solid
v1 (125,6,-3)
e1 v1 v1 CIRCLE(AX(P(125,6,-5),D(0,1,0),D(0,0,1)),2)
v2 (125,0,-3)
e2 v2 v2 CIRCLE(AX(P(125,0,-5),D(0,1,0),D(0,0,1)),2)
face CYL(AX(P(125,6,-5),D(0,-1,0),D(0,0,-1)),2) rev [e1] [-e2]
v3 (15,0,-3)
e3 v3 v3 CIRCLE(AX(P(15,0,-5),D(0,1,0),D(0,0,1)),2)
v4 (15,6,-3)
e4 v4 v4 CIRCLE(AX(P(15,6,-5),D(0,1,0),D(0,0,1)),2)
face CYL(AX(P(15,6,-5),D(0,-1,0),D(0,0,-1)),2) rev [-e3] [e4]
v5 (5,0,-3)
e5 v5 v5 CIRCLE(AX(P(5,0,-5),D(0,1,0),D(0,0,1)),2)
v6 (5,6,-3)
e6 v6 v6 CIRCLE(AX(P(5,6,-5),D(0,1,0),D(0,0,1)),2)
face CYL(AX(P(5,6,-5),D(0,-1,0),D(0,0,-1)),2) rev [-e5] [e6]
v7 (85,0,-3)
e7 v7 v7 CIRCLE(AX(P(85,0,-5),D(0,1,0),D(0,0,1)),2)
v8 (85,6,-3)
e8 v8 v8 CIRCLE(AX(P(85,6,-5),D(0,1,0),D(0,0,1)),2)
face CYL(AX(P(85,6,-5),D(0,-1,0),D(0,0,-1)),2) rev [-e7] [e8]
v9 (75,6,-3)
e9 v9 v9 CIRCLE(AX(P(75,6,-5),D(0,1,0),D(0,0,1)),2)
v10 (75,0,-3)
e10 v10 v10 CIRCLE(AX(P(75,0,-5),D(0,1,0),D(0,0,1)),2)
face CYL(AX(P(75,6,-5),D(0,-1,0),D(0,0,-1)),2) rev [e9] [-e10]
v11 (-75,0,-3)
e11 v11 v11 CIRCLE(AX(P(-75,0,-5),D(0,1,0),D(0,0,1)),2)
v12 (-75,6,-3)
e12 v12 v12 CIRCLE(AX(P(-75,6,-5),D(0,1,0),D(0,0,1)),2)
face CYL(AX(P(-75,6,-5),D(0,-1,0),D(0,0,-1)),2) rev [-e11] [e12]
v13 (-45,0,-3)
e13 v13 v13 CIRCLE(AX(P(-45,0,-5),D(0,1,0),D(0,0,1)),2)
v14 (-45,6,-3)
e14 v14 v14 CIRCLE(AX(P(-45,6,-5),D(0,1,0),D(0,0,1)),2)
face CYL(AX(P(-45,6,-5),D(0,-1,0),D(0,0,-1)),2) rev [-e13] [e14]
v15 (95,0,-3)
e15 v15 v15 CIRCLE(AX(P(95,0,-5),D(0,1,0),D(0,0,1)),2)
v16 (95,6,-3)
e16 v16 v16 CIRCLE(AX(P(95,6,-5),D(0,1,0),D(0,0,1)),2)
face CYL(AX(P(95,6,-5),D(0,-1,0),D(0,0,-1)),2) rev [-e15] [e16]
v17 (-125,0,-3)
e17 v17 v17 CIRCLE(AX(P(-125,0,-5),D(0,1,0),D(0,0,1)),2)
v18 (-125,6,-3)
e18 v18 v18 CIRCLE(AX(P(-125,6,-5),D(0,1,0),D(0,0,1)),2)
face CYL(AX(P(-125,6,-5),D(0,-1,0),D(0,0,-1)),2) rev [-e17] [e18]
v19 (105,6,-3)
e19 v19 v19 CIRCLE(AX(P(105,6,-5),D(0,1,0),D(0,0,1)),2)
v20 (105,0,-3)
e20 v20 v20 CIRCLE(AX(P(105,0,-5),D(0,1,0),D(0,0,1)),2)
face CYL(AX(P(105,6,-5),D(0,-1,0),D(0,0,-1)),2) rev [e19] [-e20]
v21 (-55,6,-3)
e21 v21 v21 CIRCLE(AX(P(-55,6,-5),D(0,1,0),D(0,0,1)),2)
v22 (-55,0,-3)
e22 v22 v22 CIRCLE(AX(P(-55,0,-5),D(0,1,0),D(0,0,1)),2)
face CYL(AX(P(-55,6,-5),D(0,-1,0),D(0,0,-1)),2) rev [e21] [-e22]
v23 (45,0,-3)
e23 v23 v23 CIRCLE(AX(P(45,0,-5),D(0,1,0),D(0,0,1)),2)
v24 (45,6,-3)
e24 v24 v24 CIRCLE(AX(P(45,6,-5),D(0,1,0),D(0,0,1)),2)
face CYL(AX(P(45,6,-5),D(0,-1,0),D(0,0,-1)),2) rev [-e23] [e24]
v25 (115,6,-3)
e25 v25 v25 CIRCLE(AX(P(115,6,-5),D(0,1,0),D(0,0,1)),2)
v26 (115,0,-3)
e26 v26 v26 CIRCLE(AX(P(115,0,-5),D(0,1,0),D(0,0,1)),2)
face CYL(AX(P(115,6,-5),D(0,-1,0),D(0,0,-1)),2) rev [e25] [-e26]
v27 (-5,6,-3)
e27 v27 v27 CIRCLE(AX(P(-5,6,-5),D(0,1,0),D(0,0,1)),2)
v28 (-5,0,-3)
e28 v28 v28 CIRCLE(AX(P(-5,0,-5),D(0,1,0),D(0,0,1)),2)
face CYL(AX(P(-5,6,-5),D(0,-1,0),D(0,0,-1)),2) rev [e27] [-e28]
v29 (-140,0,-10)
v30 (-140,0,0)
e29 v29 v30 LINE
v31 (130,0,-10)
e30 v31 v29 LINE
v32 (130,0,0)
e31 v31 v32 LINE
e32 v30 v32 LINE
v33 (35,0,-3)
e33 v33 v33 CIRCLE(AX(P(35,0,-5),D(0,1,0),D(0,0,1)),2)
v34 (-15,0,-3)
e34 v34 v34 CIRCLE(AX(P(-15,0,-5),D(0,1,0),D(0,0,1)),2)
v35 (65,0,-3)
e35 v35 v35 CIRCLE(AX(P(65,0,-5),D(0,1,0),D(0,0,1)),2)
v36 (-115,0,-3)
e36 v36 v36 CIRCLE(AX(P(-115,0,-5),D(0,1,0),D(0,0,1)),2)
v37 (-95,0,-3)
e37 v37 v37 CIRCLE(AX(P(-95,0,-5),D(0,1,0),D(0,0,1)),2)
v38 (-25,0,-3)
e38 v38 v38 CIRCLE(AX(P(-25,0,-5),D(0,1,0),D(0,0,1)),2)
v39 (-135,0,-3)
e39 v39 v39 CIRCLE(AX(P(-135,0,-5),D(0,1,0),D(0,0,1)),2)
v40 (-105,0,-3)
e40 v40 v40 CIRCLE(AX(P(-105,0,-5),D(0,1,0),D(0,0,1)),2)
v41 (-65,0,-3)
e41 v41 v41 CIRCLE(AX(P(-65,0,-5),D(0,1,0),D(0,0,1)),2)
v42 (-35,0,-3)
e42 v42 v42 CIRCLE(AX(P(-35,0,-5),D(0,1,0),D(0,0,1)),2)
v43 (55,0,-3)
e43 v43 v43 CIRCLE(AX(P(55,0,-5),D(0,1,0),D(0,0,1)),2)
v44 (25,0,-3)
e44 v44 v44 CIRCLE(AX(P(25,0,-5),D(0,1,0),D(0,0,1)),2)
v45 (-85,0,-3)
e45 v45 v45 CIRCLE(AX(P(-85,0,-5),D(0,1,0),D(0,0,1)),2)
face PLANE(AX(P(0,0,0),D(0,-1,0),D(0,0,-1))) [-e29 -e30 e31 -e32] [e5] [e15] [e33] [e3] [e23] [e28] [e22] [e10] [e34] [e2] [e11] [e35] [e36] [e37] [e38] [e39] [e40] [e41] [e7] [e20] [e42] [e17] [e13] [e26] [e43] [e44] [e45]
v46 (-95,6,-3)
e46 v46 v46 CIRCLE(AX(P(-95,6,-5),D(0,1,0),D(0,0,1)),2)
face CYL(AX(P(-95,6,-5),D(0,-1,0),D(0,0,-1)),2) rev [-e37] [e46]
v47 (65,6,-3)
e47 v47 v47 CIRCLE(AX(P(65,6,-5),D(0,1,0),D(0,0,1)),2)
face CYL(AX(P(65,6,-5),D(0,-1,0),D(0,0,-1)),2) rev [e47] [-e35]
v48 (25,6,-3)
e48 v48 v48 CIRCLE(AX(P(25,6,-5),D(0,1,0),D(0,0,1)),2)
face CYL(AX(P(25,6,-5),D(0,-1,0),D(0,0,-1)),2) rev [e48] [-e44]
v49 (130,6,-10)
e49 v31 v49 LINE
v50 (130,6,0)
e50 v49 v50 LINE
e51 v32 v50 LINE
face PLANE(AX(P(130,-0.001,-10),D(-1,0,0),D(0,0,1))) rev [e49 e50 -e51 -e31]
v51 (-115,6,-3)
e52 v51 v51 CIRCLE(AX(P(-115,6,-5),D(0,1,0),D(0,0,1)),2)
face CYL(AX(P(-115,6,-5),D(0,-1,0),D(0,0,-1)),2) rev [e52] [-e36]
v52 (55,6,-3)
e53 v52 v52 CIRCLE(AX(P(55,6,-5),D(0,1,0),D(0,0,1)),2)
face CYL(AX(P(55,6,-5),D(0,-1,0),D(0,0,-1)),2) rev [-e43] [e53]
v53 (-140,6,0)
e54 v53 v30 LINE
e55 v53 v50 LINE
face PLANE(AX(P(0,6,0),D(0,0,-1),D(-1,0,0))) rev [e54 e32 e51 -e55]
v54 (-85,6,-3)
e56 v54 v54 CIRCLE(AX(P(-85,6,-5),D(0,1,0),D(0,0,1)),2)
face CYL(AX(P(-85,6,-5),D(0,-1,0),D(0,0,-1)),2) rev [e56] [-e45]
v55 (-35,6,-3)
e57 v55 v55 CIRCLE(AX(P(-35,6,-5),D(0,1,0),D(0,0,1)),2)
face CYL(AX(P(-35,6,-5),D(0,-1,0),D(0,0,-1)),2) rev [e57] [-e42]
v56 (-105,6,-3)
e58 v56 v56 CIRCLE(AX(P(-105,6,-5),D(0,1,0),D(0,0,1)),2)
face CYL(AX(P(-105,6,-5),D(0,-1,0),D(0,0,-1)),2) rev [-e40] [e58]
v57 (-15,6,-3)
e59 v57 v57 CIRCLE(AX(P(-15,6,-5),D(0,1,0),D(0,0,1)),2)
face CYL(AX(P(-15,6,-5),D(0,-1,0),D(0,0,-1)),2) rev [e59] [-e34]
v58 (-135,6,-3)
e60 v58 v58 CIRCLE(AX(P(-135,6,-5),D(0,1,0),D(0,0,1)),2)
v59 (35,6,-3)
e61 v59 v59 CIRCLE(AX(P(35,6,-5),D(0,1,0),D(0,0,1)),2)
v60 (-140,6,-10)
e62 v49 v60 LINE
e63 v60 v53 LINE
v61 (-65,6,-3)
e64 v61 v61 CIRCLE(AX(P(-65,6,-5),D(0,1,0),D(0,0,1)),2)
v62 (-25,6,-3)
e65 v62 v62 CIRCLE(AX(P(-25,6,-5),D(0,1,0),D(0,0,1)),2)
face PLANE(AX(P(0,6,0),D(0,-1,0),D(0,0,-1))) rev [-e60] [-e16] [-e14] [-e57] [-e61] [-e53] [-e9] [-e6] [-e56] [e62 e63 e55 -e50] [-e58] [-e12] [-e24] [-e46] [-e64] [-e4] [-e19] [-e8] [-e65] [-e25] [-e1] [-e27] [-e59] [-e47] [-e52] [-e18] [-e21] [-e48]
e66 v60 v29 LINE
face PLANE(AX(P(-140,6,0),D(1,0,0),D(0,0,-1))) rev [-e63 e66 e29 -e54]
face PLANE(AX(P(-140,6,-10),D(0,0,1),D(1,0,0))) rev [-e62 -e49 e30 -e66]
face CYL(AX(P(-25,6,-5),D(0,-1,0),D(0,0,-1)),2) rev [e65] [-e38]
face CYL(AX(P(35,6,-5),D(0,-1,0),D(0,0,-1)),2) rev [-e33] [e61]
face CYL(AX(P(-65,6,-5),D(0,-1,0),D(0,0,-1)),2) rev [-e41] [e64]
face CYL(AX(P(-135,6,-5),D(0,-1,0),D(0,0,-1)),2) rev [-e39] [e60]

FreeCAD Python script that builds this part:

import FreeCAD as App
import Part
import Sketcher
from FreeCAD import Vector
Q = App.Units.Quantity

doc = App.newDocument("Part")
params = doc.addObject("Spreadsheet::Sheet", "Params")
for row, (alias, value) in enumerate([
    ("sketch1_diameter", "4 mm"),
    ("sketch1_width", "280 mm"),
    ("sketch1_height", "10 mm"),
    ("pad1_length", "6 mm"),
    ("sketch2_width", "10 mm"),
    ("pocket1_length", "6 mm"),
], start=1):
    params.set(f"A{row}", alias)
    params.set(f"B{row}", "=" + value)
    params.setAlias(f"B{row}", alias)

body = doc.addObject("PartDesign::Body", "Body")

# Sketch on XZ plane
sketch1 = body.newObject("Sketcher::SketchObject", "Sketch")
sketch1.AttachmentSupport = (doc.getObject("XZ_Plane"), [""])
sketch1.MapMode = "FlatFace"
sketch1.addGeometry([
    Part.LineSegment(Vector(140, 0, 0), Vector(140, -10, 0)),  # 0
    Part.LineSegment(Vector(140, -10, 0), Vector(-140, -10, 0)),  # 1
    Part.LineSegment(Vector(-140, -10, 0), Vector(-140, 0, 0)),  # 2
    Part.LineSegment(Vector(-140, 0, 0), Vector(140, 0, 0)),  # 3
    Part.Circle(Vector(-135, -5, 0), Vector(0, 0, 1), 2),  # 4
    Part.Circle(Vector(-125, -5, 0), Vector(0, 0, 1), 2),  # 5
    Part.Circle(Vector(-115, -5, 0), Vector(0, 0, 1), 2),  # 6
    Part.Circle(Vector(-105, -5, 0), Vector(0, 0, 1), 2),  # 7
    Part.Circle(Vector(-95, -5, 0), Vector(0, 0, 1), 2),  # 8
    Part.Circle(Vector(-85, -5, 0), Vector(0, 0, 1), 2),  # 9
    Part.Circle(Vector(-75, -5, 0), Vector(0, 0, 1), 2),  # 10
    Part.Circle(Vector(-65, -5, 0), Vector(0, 0, 1), 2),  # 11
    Part.Circle(Vector(-55, -5, 0), Vector(0, 0, 1), 2),  # 12
    Part.Circle(Vector(-45, -5, 0), Vector(0, 0, 1), 2),  # 13
    Part.Circle(Vector(-35, -5, 0), Vector(0, 0, 1), 2),  # 14
    Part.Circle(Vector(-25, -5, 0), Vector(0, 0, 1), 2),  # 15
    Part.Circle(Vector(-15, -5, 0), Vector(0, 0, 1), 2),  # 16
    Part.Circle(Vector(-5, -5, 0), Vector(0, 0, 1), 2),  # 17
    Part.Circle(Vector(5, -5, 0), Vector(0, 0, 1), 2),  # 18
    Part.Circle(Vector(15, -5, 0), Vector(0, 0, 1), 2),  # 19
    Part.Circle(Vector(25, -5, 0), Vector(0, 0, 1), 2),  # 20
    Part.Circle(Vector(35, -5, 0), Vector(0, 0, 1), 2),  # 21
    Part.Circle(Vector(45, -5, 0), Vector(0, 0, 1), 2),  # 22
    Part.Circle(Vector(55, -5, 0), Vector(0, 0, 1), 2),  # 23
    Part.Circle(Vector(65, -5, 0), Vector(0, 0, 1), 2),  # 24
    Part.Circle(Vector(75, -5, 0), Vector(0, 0, 1), 2),  # 25
    Part.Circle(Vector(85, -5, 0), Vector(0, 0, 1), 2),  # 26
    Part.Circle(Vector(95, -5, 0), Vector(0, 0, 1), 2),  # 27
    Part.Circle(Vector(105, -5, 0), Vector(0, 0, 1), 2),  # 28
    Part.Circle(Vector(115, -5, 0), Vector(0, 0, 1), 2),  # 29
    Part.Circle(Vector(125, -5, 0), Vector(0, 0, 1), 2),  # 30
    Part.Circle(Vector(135, -5, 0), Vector(0, 0, 1), 2),  # 31
], False)
sketch1.addConstraint([
    Sketcher.Constraint("Coincident", 0, 2, 1, 1),
    Sketcher.Constraint("Coincident", 1, 2, 2, 1),
    Sketcher.Constraint("Coincident", 2, 2, 3, 1),
    Sketcher.Constraint("Coincident", 3, 2, 0, 1),
    Sketcher.Constraint("Vertical", 0),
    Sketcher.Constraint("Horizontal", 1),
    Sketcher.Constraint("Vertical", 2),
    Sketcher.Constraint("Horizontal", 3),
    Sketcher.Constraint("Equal", 4, 5),
    Sketcher.Constraint("Equal", 5, 6),
    Sketcher.Constraint("Equal", 6, 7),
    Sketcher.Constraint("Equal", 7, 8),
    Sketcher.Constraint("Equal", 8, 9),
    Sketcher.Constraint("Equal", 9, 10),
    Sketcher.Constraint("Equal", 10, 11),
    Sketcher.Constraint("Equal", 11, 12),
    Sketcher.Constraint("Equal", 12, 13),
    Sketcher.Constraint("Equal", 13, 14),
    Sketcher.Constraint("Equal", 14, 15),
    Sketcher.Constraint("Equal", 15, 16),
    Sketcher.Constraint("Equal", 16, 17),
    Sketcher.Constraint("Equal", 17, 18),
    Sketcher.Constraint("Equal", 18, 19),
    Sketcher.Constraint("Equal", 19, 20),
    Sketcher.Constraint("Equal", 20, 21),
    Sketcher.Constraint("Equal", 21, 22),
    Sketcher.Constraint("Equal", 22, 23),
    Sketcher.Constraint("Equal", 23, 24),
    Sketcher.Constraint("Equal", 24, 25),
    Sketcher.Constraint("Equal", 25, 26),
    Sketcher.Constraint("Equal", 26, 27),
    Sketcher.Constraint("Equal", 27, 28),
    Sketcher.Constraint("Equal", 28, 29),
    Sketcher.Constraint("Equal", 29, 30),
    Sketcher.Constraint("Equal", 30, 31),
    Sketcher.Constraint("Symmetric", 2, 2, 3, 2, -1, 1),
    Sketcher.Constraint("Symmetric", 17, 3, 18, 3, -2),
    Sketcher.Constraint("Symmetric", 16, 3, 19, 3, -2),
    Sketcher.Constraint("Symmetric", 15, 3, 20, 3, -2),
    Sketcher.Constraint("Symmetric", 14, 3, 21, 3, -2),
    Sketcher.Constraint("Symmetric", 13, 3, 22, 3, -2),
    Sketcher.Constraint("Symmetric", 12, 3, 23, 3, -2),
    Sketcher.Constraint("Symmetric", 11, 3, 24, 3, -2),
    Sketcher.Constraint("Symmetric", 10, 3, 25, 3, -2),
    Sketcher.Constraint("Symmetric", 9, 3, 26, 3, -2),
    Sketcher.Constraint("Symmetric", 8, 3, 27, 3, -2),
    Sketcher.Constraint("Symmetric", 7, 3, 28, 3, -2),
    Sketcher.Constraint("Symmetric", 6, 3, 29, 3, -2),
    Sketcher.Constraint("Symmetric", 5, 3, 30, 3, -2),
    Sketcher.Constraint("Symmetric", 4, 3, 31, 3, -2),
    Sketcher.Constraint("Horizontal", 4, 3, 5, 3),
    Sketcher.Constraint("Horizontal", 5, 3, 6, 3),
    Sketcher.Constraint("Horizontal", 6, 3, 7, 3),
    Sketcher.Constraint("Horizontal", 7, 3, 8, 3),
    Sketcher.Constraint("Horizontal", 8, 3, 9, 3),
    Sketcher.Constraint("Horizontal", 9, 3, 10, 3),
    Sketcher.Constraint("Horizontal", 10, 3, 11, 3),
    Sketcher.Constraint("Horizontal", 11, 3, 12, 3),
    Sketcher.Constraint("Horizontal", 12, 3, 13, 3),
    Sketcher.Constraint("Horizontal", 13, 3, 14, 3),
    Sketcher.Constraint("Horizontal", 14, 3, 15, 3),
    Sketcher.Constraint("Horizontal", 15, 3, 16, 3),
    Sketcher.Constraint("Horizontal", 16, 3, 17, 3),
    Sketcher.Constraint("Diameter", 4, Q("4 mm")),
    Sketcher.Constraint("DistanceX", 1, 2, 1, 1, Q("280 mm")),
    Sketcher.Constraint("DistanceY", 0, 2, 0, 1, Q("10 mm")),
    Sketcher.Constraint("DistanceX", 4, 3, -1, 1, Q("135 mm")),
    Sketcher.Constraint("DistanceY", 4, 3, -1, 1, Q("5 mm")),
    Sketcher.Constraint("DistanceX", 5, 3, -1, 1, Q("125 mm")),
    Sketcher.Constraint("DistanceX", 6, 3, -1, 1, Q("115 mm")),
    Sketcher.Constraint("DistanceX", 7, 3, -1, 1, Q("105 mm")),
    Sketcher.Constraint("DistanceX", 8, 3, -1, 1, Q("95 mm")),
    Sketcher.Constraint("DistanceX", 9, 3, -1, 1, Q("85 mm")),
    Sketcher.Constraint("DistanceX", 10, 3, -1, 1, Q("75 mm")),
    Sketcher.Constraint("DistanceX", 11, 3, -1, 1, Q("65 mm")),
    Sketcher.Constraint("DistanceX", 12, 3, -1, 1, Q("55 mm")),
    Sketcher.Constraint("DistanceX", 13, 3, -1, 1, Q("45 mm")),
    Sketcher.Constraint("DistanceX", 14, 3, -1, 1, Q("35 mm")),
    Sketcher.Constraint("DistanceX", 15, 3, -1, 1, Q("25 mm")),
    Sketcher.Constraint("DistanceX", 16, 3, -1, 1, Q("15 mm")),
    Sketcher.Constraint("DistanceX", 17, 3, -1, 1, Q("5 mm")),
])
sketch1.setExpression("Constraints[63]", "Params.sketch1_diameter")
sketch1.setExpression("Constraints[64]", "Params.sketch1_width")
sketch1.setExpression("Constraints[65]", "Params.sketch1_height")
pad1 = body.newObject("PartDesign::Pad", "Pad")
pad1.Profile = sketch1
pad1.setExpression("Length", "Params.pad1_length")
pad1.Reversed = True

# Sketch on XZ plane
sketch2 = body.newObject("Sketcher::SketchObject", "Sketch001")
sketch2.AttachmentSupport = (doc.getObject("XZ_Plane"), [""])
sketch2.MapMode = "FlatFace"
sketch2.AttachmentOffset = App.Placement(Vector(0, 0, -6), App.Rotation())
sketch2.addGeometry([
    Part.LineSegment(Vector(130, -10, 0), Vector(130, 0, 0)),
    Part.LineSegment(Vector(130, 0, 0), Vector(140, 0, 0)),
    Part.LineSegment(Vector(140, 0, 0), Vector(140, -10, 0)),
    Part.LineSegment(Vector(140, -10, 0), Vector(130, -10, 0)),
], False)
sketch2.addConstraint([
    Sketcher.Constraint("Coincident", 0, 2, 1, 1),
    Sketcher.Constraint("Coincident", 1, 2, 2, 1),
    Sketcher.Constraint("Coincident", 2, 2, 3, 1),
    Sketcher.Constraint("Coincident", 3, 2, 0, 1),
    Sketcher.Constraint("Vertical", 0),
    Sketcher.Constraint("Horizontal", 1),
    Sketcher.Constraint("Vertical", 2),
    Sketcher.Constraint("Horizontal", 3),
    Sketcher.Constraint("PointOnObject", 0, 2, -1),
    Sketcher.Constraint("Equal", 3, 0),
    Sketcher.Constraint("DistanceX", 1, 1, 1, 2, Q("10 mm")),
    Sketcher.Constraint("DistanceX", -1, 1, 0, 2, Q("130 mm")),
])
sketch2.setExpression("Constraints[10]", "Params.sketch2_width")
pocket1 = body.newObject("PartDesign::Pocket", "Pocket")
pocket1.Profile = sketch2
pocket1.setExpression("Length", "Params.pocket1_length")
pocket1.Reversed = True

doc.recompute()
